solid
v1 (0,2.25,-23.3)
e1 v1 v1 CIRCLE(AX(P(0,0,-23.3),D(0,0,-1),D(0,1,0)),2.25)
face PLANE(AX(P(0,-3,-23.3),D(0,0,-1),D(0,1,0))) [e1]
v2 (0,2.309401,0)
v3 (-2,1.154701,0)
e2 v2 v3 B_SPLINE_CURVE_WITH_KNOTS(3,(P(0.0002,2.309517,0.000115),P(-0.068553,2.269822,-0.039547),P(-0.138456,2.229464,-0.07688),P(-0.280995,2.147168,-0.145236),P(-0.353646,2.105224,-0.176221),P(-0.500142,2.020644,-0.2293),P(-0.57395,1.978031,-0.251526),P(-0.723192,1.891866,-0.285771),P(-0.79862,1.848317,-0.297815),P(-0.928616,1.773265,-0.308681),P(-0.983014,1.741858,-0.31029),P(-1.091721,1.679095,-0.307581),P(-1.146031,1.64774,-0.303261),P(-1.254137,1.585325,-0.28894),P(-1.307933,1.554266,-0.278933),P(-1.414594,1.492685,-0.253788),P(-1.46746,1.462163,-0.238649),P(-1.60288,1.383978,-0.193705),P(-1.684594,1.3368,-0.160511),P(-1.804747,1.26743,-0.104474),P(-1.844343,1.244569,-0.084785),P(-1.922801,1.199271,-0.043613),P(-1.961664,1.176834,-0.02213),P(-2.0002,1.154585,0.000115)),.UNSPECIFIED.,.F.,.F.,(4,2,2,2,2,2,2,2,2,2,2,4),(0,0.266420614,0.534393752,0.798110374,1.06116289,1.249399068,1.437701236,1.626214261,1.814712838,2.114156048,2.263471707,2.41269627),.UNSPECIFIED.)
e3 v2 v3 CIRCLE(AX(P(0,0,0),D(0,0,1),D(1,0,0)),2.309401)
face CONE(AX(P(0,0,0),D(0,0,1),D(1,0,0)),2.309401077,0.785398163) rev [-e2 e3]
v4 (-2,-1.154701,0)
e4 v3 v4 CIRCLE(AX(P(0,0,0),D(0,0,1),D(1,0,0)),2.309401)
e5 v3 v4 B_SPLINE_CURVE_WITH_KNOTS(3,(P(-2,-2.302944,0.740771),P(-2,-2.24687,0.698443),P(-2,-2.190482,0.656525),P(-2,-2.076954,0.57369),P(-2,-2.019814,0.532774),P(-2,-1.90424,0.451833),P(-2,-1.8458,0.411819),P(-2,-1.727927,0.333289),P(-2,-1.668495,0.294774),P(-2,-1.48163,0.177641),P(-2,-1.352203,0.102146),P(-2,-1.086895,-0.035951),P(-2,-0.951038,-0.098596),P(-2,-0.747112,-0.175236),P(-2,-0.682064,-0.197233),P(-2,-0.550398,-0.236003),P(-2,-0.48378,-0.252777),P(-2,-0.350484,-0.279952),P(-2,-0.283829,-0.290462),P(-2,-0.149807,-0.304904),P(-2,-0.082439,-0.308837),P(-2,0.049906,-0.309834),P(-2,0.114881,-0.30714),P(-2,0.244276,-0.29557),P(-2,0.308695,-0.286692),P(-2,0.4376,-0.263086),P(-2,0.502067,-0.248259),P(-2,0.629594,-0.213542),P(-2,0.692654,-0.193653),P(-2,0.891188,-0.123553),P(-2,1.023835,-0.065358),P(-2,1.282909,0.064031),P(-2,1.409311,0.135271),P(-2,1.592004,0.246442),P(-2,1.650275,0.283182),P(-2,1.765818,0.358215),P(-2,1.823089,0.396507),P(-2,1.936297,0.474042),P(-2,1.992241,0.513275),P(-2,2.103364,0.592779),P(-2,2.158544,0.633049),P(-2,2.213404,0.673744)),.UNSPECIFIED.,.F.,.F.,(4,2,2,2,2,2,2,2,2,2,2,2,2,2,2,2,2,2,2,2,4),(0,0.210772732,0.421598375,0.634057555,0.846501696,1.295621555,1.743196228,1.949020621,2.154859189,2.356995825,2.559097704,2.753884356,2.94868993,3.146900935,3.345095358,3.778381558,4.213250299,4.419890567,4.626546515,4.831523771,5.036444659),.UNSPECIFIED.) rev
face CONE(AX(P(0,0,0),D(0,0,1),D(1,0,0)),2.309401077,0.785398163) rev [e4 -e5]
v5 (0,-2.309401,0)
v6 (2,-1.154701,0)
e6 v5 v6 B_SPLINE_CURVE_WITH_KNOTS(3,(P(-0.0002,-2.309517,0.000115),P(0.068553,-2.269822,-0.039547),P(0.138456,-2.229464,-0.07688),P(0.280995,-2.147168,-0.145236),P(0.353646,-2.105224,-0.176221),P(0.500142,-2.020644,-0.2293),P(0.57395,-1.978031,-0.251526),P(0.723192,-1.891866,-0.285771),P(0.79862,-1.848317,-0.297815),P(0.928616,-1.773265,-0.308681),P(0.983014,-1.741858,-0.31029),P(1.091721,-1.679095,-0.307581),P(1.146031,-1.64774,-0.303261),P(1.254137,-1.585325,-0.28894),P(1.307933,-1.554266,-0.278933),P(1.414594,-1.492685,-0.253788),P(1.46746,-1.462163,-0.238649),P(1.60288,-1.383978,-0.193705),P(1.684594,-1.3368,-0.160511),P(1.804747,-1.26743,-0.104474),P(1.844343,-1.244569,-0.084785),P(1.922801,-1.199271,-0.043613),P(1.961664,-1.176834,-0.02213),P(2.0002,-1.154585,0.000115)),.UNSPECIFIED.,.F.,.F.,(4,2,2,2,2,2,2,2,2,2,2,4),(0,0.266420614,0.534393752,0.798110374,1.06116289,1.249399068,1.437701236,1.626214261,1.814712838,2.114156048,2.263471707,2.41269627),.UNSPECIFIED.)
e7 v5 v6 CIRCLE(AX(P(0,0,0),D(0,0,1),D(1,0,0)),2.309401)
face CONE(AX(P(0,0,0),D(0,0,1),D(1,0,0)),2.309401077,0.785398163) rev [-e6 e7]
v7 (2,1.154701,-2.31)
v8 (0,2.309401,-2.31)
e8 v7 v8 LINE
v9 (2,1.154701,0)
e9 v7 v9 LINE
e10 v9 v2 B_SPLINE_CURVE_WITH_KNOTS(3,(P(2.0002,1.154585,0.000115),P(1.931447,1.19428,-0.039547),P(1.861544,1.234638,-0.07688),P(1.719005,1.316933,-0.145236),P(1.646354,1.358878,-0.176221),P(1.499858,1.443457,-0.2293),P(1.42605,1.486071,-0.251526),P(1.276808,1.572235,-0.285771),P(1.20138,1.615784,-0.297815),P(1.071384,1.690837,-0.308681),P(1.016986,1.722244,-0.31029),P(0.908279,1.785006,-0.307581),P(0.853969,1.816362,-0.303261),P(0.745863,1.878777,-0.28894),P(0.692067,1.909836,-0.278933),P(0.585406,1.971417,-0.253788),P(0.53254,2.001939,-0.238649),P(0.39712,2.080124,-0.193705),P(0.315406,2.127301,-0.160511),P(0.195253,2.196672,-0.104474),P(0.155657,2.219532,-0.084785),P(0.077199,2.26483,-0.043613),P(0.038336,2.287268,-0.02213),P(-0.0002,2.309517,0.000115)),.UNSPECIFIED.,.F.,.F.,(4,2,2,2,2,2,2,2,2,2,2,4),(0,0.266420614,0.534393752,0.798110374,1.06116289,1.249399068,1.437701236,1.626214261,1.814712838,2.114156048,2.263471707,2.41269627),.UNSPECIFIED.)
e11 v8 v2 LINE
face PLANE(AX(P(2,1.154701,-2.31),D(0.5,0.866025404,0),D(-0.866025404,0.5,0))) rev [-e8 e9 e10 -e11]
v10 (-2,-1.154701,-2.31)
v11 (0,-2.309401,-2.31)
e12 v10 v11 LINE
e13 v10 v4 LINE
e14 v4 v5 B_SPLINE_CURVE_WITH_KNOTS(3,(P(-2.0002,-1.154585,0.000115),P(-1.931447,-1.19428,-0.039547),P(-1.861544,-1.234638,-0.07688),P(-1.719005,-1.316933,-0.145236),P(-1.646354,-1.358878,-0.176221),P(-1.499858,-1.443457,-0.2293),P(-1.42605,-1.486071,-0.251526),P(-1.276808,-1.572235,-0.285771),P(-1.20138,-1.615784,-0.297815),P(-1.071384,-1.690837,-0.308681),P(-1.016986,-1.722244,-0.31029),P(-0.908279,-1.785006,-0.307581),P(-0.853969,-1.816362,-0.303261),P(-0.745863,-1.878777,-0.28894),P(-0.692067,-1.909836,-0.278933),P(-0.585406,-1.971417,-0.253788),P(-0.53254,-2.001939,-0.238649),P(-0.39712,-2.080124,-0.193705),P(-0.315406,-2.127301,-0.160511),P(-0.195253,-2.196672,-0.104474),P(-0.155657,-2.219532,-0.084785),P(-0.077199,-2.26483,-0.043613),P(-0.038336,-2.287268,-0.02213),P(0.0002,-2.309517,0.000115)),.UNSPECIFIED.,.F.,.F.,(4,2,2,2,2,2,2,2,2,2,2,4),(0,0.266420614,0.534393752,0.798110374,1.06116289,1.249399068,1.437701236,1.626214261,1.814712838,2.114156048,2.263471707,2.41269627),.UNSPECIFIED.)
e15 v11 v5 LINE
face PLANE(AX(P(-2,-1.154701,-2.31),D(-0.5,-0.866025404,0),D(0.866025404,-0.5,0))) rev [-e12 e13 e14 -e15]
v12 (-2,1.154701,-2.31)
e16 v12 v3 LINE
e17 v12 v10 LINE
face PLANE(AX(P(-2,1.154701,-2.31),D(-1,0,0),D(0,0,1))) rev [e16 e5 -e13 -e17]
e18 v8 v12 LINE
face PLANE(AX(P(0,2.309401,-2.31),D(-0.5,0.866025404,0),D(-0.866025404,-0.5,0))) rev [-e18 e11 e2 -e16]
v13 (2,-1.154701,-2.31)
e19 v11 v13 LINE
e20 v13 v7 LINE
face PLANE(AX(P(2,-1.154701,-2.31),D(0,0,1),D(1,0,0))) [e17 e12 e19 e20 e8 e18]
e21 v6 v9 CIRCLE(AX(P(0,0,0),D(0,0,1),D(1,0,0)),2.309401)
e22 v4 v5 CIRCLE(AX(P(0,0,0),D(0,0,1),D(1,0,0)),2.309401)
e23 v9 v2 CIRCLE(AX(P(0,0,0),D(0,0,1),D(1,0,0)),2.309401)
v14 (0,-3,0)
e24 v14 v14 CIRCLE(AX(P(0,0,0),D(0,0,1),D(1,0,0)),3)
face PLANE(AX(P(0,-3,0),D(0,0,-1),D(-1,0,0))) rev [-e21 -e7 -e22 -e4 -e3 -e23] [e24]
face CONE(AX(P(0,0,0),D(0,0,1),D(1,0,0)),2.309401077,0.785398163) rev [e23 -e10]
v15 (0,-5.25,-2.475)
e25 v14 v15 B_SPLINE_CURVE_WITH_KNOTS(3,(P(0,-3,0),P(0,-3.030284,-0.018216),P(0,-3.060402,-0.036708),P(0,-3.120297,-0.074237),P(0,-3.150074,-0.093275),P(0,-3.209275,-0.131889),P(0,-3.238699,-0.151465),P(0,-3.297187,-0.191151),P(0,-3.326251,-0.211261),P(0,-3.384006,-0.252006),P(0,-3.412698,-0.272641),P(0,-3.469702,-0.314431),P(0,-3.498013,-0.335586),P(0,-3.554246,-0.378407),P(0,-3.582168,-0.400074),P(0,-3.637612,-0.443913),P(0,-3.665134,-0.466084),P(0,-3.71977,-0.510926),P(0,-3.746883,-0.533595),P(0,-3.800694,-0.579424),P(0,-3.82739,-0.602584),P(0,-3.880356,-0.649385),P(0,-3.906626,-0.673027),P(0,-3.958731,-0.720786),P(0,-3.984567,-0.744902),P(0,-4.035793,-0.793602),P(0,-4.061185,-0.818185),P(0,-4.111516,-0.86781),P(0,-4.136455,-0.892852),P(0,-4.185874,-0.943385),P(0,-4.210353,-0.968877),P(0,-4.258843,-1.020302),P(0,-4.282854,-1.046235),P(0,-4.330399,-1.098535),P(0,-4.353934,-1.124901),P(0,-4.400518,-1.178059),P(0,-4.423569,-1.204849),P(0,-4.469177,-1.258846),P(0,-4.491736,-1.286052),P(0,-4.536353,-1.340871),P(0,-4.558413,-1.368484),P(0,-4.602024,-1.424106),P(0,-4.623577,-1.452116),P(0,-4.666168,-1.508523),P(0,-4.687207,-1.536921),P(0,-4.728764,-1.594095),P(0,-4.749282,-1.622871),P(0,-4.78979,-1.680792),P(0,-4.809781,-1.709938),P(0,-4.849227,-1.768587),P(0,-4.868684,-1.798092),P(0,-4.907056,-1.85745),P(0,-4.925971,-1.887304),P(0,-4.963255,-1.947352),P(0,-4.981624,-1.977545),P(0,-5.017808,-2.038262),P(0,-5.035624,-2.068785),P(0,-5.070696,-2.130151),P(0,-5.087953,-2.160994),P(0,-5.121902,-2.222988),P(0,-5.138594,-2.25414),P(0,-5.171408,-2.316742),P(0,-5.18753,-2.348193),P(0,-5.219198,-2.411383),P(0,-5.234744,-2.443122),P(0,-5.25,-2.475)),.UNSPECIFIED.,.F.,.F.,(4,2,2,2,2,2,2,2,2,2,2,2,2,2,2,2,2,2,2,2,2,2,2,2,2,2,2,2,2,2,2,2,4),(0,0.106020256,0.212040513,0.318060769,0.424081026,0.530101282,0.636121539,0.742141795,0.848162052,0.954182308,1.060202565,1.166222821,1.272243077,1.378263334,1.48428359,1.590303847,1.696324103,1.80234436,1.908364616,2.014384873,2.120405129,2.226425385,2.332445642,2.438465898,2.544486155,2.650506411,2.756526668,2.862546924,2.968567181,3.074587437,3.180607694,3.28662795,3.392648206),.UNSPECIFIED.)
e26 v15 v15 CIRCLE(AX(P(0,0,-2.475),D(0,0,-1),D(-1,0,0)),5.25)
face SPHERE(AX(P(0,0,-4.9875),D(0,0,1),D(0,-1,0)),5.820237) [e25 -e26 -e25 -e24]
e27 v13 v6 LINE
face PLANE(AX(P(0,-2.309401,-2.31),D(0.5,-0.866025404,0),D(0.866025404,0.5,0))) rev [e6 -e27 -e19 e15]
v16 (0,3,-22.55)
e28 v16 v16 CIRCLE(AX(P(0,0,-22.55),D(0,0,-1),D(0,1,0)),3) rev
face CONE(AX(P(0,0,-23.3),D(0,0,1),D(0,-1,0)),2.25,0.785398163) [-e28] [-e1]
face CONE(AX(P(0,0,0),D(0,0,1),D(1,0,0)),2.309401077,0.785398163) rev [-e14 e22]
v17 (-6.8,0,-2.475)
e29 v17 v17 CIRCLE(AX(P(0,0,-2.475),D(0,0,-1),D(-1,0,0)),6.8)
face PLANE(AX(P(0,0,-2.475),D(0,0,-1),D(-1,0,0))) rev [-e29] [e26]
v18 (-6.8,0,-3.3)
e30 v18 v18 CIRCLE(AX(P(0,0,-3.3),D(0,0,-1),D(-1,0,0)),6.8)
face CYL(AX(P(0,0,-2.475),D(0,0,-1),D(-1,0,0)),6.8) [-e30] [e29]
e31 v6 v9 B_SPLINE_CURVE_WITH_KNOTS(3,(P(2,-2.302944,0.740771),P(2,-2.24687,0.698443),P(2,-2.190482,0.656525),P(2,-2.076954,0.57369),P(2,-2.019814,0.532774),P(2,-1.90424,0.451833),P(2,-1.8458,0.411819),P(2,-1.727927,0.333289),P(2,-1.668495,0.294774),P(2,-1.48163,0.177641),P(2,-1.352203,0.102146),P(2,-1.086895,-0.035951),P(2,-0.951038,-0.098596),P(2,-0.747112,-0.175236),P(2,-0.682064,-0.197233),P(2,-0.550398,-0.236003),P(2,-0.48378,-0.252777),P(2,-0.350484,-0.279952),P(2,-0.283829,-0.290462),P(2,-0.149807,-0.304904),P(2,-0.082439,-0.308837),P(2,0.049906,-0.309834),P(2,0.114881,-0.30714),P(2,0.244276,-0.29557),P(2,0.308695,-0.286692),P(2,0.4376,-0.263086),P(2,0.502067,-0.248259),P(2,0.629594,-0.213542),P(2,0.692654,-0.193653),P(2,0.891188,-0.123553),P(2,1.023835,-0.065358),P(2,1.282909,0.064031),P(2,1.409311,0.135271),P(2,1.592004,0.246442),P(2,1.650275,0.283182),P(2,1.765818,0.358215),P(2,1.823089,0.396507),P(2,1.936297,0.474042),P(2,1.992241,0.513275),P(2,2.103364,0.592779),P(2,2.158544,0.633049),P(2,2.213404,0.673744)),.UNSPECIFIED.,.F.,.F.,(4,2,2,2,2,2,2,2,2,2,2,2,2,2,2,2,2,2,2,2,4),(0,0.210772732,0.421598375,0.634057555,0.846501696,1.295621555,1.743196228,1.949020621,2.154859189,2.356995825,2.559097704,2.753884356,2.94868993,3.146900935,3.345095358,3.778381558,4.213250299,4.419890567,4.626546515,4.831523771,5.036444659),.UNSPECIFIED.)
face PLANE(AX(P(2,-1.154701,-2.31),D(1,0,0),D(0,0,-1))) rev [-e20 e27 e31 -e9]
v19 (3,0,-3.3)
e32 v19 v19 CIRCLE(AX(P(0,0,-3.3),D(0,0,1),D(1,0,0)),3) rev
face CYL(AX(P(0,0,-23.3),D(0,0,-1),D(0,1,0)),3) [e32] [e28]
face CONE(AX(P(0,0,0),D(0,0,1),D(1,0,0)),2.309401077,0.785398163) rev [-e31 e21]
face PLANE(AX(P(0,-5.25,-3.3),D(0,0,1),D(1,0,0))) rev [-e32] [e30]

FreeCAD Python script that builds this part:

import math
import FreeCAD as App
import Part
import Sketcher
Q = App.Units.Quantity


def edges_at(feature, points):
    """Names of the edges that pass closest to the given points."""
    edges = feature.Shape.Edges
    near = lambda p: min(range(len(edges)), key=lambda i: edges[i].distToShape(Part.Vertex(*p))[0])
    return sorted({f"Edge{near(p) + 1}" for p in points})

doc = App.newDocument("Part")
body = doc.addObject("PartDesign::Body", "Body")

# Sketch on YZ plane
sketch1 = body.newObject("Sketcher::SketchObject", "Sketch")
sketch1.AttachmentSupport = (doc.getObject("YZ_Plane"), [""])
sketch1.MapMode = "FlatFace"
sketch1.addGeometry([
    Part.LineSegment(App.Vector(3, -3.3, 0), App.Vector(0, -3.3, 0)),
    Part.LineSegment(App.Vector(0, -3.3, 0), App.Vector(0, -23.3, 0)),
    Part.LineSegment(App.Vector(0, -23.3, 0), App.Vector(3, -23.3, 0)),
    Part.LineSegment(App.Vector(3, -23.3, 0), App.Vector(3, -3.3, 0)),
], False)
sketch1.addConstraint([
    Sketcher.Constraint("Coincident", 0, 2, 1, 1),
    Sketcher.Constraint("Coincident", 1, 2, 2, 1),
    Sketcher.Constraint("Coincident", 2, 2, 3, 1),
    Sketcher.Constraint("Coincident", 3, 2, 0, 1),
    Sketcher.Constraint("Horizontal", 0),
    Sketcher.Constraint("Vertical", 1),
    Sketcher.Constraint("Horizontal", 2),
    Sketcher.Constraint("Vertical", 3),
    Sketcher.Constraint("PointOnObject", 0, 2, -2),
    Sketcher.Constraint("DistanceX", 0, 2, 0, 1, 3.0),
    Sketcher.Constraint("DistanceY", 1, 2, 1, 1, 20.0),
    Sketcher.Constraint("DistanceY", 0, 2, -1, 1, 3.3),
])
revolution = body.newObject("PartDesign::Revolution", "Revolution")
revolution.Profile = sketch1
revolution.ReferenceAxis = (sketch1, ["V_Axis"])
revolution.Angle = 360
doc.recompute()

chamfer = body.newObject("PartDesign::Chamfer", "Chamfer")
chamfer.Base = (revolution, edges_at(revolution, [(0, -3, -23.3)]))
chamfer.Size = 0.75

# Sketch on YZ plane
sketch2 = body.newObject("Sketcher::SketchObject", "Sketch001")
sketch2.AttachmentSupport = (doc.getObject("YZ_Plane"), [""])
sketch2.MapMode = "FlatFace"
sketch2.addGeometry([
    Part.LineSegment(App.Vector(5.2, -3.3, 0), App.Vector(5.2, -2.5, 0)),  # 0
    Part.ArcOfCircle(Part.Circle(App.Vector(0, -5, 0), App.Vector(0, 0, 1), 5.8), math.radians(26), math.radians(59)),  # 1
    Part.LineSegment(App.Vector(3, 0, 0), App.Vector(0, 0, 0)),  # 2
    Part.LineSegment(App.Vector(0, 0, 0), App.Vector(0, -3.3, 0)),  # 3
    Part.LineSegment(App.Vector(0, -3.3, 0), App.Vector(5.2, -3.3, 0)),  # 4
], False)
sketch2.addConstraint([
    Sketcher.Constraint("Coincident", 0, 2, 1, 1),
    Sketcher.Constraint("Coincident", 1, 2, 2, 1),
    Sketcher.Constraint("Coincident", 2, 2, 3, 1),
    Sketcher.Constraint("Coincident", 3, 2, 4, 1),
    Sketcher.Constraint("Coincident", 4, 2, 0, 1),
    Sketcher.Constraint("Vertical", 0),
    Sketcher.Constraint("Horizontal", 2),
    Sketcher.Constraint("Vertical", 3),
    Sketcher.Constraint("Horizontal", 4),
    Sketcher.Constraint("Coincident", 2, 2, -1, 1),
    Sketcher.Constraint("PointOnObject", 1, 3, -2),
    Sketcher.Constraint("DistanceX", 2, 2, 2, 1, 3.0),
    Sketcher.Constraint("DistanceY", 3, 2, 3, 1, 3.3),
    Sketcher.Constraint("DistanceX", 4, 1, 4, 2, 5.25),
    Sketcher.Constraint("DistanceY", 0, 1, 0, 2, 0.825),
])
revolution2 = body.newObject("PartDesign::Revolution", "Revolution001")
revolution2.Profile = sketch2
revolution2.ReferenceAxis = (sketch2, ["V_Axis"])
revolution2.Angle = 360

# Sketch on XY plane
sketch3 = body.newObject("Sketcher::SketchObject", "Sketch002")
sketch3.AttachmentSupport = (doc.getObject("XY_Plane"), [""])
sketch3.MapMode = "FlatFace"
sketch3.AttachmentOffset = App.Placement(App.Vector(0, 0, -3.3), App.Rotation())
sketch3.addGeometry(Part.Circle(App.Vector(0, 0, 0), App.Vector(0, 0, 1), 7), False)
sketch3.addConstraint([
    Sketcher.Constraint("Coincident", 0, 3, -1, 1),
    Sketcher.Constraint("Diameter", 0, 13.6),
])
pad1 = body.newObject("PartDesign::Pad", "Pad")
pad1.Profile = sketch3
pad1.Length = 0.825

# Sketch on XY plane
sketch4 = body.newObject("Sketcher::SketchObject", "Sketch003")
sketch4.AttachmentSupport = (doc.getObject("XY_Plane"), [""])
sketch4.MapMode = "FlatFace"
sketch4.addGeometry([
    Part.LineSegment(App.Vector(2, -1.2, 0), App.Vector(2, 1.2, 0)),  # 0
    Part.LineSegment(App.Vector(2, 1.2, 0), App.Vector(0, 2.3, 0)),  # 1
    Part.LineSegment(App.Vector(0, 2.3, 0), App.Vector(-2, 1.2, 0)),  # 2
    Part.LineSegment(App.Vector(-2, 1.2, 0), App.Vector(-2, -1.2, 0)),  # 3
    Part.LineSegment(App.Vector(-2, -1.2, 0), App.Vector(0, -2.3, 0)),  # 4
    Part.LineSegment(App.Vector(0, -2.3, 0), App.Vector(2, -1.2, 0)),  # 5
], False)
sketch4.addConstraint([
    Sketcher.Constraint("Coincident", 0, 2, 1, 1),
    Sketcher.Constraint("Coincident", 1, 2, 2, 1),
    Sketcher.Constraint("Coincident", 2, 2, 3, 1),
    Sketcher.Constraint("Coincident", 3, 2, 4, 1),
    Sketcher.Constraint("Coincident", 4, 2, 5, 1),
    Sketcher.Constraint("Coincident", 5, 2, 0, 1),
    Sketcher.Constraint("Vertical", 0),
    Sketcher.Constraint("Vertical", 3),
    Sketcher.Constraint("Symmetric", 0, 2, 3, 2, -1, 1),
    Sketcher.Constraint("Symmetric", 1, 2, 4, 2, -1, 1),
    Sketcher.Constraint("PointOnObject", 1, 2, -2),
    Sketcher.Constraint("Parallel", 2, 5),
    Sketcher.Constraint("Horizontal", 0, 2, 2, 2),
    Sketcher.Constraint("Angle", 1, Q("150 deg")),
    Sketcher.Constraint("DistanceX", -1, 1, 0, 2, 2.0),
    Sketcher.Constraint("DistanceY", 0, 1, 0, 2, 2.309401),
])
pocket1 = body.newObject("PartDesign::Pocket", "Pocket")
pocket1.Profile = sketch4
pocket1.Length = 2.31

# Sketch on YZ plane
sketch5 = body.newObject("Sketcher::SketchObject", "Sketch004")
sketch5.AttachmentSupport = (doc.getObject("YZ_Plane"), [""])
sketch5.MapMode = "FlatFace"
sketch5.addGeometry([
    Part.LineSegment(App.Vector(0, 0, 0), App.Vector(-2.3, 0, 0)),
    Part.LineSegment(App.Vector(-2.3, 0, 0), App.Vector(0, -2.3, 0)),
    Part.LineSegment(App.Vector(0, -2.3, 0), App.Vector(0, 0, 0)),
], False)
sketch5.addConstraint([
    Sketcher.Constraint("Coincident", 0, 2, 1, 1),
    Sketcher.Constraint("Coincident", 1, 2, 2, 1),
    Sketcher.Constraint("Coincident", 2, 2, 0, 1),
    Sketcher.Constraint("Horizontal", 0),
    Sketcher.Constraint("Vertical", 2),
    Sketcher.Constraint("Coincident", 2, 2, -1, 1),
    Sketcher.Constraint("Equal", 0, 2),
    Sketcher.Constraint("DistanceX", 0, 2, 0, 1, 2.309401),
])
groove = body.newObject("PartDesign::Groove", "Groove")
groove.Profile = sketch5
groove.ReferenceAxis = (sketch5, ["V_Axis"])
groove.Angle = 360

doc.recompute()
